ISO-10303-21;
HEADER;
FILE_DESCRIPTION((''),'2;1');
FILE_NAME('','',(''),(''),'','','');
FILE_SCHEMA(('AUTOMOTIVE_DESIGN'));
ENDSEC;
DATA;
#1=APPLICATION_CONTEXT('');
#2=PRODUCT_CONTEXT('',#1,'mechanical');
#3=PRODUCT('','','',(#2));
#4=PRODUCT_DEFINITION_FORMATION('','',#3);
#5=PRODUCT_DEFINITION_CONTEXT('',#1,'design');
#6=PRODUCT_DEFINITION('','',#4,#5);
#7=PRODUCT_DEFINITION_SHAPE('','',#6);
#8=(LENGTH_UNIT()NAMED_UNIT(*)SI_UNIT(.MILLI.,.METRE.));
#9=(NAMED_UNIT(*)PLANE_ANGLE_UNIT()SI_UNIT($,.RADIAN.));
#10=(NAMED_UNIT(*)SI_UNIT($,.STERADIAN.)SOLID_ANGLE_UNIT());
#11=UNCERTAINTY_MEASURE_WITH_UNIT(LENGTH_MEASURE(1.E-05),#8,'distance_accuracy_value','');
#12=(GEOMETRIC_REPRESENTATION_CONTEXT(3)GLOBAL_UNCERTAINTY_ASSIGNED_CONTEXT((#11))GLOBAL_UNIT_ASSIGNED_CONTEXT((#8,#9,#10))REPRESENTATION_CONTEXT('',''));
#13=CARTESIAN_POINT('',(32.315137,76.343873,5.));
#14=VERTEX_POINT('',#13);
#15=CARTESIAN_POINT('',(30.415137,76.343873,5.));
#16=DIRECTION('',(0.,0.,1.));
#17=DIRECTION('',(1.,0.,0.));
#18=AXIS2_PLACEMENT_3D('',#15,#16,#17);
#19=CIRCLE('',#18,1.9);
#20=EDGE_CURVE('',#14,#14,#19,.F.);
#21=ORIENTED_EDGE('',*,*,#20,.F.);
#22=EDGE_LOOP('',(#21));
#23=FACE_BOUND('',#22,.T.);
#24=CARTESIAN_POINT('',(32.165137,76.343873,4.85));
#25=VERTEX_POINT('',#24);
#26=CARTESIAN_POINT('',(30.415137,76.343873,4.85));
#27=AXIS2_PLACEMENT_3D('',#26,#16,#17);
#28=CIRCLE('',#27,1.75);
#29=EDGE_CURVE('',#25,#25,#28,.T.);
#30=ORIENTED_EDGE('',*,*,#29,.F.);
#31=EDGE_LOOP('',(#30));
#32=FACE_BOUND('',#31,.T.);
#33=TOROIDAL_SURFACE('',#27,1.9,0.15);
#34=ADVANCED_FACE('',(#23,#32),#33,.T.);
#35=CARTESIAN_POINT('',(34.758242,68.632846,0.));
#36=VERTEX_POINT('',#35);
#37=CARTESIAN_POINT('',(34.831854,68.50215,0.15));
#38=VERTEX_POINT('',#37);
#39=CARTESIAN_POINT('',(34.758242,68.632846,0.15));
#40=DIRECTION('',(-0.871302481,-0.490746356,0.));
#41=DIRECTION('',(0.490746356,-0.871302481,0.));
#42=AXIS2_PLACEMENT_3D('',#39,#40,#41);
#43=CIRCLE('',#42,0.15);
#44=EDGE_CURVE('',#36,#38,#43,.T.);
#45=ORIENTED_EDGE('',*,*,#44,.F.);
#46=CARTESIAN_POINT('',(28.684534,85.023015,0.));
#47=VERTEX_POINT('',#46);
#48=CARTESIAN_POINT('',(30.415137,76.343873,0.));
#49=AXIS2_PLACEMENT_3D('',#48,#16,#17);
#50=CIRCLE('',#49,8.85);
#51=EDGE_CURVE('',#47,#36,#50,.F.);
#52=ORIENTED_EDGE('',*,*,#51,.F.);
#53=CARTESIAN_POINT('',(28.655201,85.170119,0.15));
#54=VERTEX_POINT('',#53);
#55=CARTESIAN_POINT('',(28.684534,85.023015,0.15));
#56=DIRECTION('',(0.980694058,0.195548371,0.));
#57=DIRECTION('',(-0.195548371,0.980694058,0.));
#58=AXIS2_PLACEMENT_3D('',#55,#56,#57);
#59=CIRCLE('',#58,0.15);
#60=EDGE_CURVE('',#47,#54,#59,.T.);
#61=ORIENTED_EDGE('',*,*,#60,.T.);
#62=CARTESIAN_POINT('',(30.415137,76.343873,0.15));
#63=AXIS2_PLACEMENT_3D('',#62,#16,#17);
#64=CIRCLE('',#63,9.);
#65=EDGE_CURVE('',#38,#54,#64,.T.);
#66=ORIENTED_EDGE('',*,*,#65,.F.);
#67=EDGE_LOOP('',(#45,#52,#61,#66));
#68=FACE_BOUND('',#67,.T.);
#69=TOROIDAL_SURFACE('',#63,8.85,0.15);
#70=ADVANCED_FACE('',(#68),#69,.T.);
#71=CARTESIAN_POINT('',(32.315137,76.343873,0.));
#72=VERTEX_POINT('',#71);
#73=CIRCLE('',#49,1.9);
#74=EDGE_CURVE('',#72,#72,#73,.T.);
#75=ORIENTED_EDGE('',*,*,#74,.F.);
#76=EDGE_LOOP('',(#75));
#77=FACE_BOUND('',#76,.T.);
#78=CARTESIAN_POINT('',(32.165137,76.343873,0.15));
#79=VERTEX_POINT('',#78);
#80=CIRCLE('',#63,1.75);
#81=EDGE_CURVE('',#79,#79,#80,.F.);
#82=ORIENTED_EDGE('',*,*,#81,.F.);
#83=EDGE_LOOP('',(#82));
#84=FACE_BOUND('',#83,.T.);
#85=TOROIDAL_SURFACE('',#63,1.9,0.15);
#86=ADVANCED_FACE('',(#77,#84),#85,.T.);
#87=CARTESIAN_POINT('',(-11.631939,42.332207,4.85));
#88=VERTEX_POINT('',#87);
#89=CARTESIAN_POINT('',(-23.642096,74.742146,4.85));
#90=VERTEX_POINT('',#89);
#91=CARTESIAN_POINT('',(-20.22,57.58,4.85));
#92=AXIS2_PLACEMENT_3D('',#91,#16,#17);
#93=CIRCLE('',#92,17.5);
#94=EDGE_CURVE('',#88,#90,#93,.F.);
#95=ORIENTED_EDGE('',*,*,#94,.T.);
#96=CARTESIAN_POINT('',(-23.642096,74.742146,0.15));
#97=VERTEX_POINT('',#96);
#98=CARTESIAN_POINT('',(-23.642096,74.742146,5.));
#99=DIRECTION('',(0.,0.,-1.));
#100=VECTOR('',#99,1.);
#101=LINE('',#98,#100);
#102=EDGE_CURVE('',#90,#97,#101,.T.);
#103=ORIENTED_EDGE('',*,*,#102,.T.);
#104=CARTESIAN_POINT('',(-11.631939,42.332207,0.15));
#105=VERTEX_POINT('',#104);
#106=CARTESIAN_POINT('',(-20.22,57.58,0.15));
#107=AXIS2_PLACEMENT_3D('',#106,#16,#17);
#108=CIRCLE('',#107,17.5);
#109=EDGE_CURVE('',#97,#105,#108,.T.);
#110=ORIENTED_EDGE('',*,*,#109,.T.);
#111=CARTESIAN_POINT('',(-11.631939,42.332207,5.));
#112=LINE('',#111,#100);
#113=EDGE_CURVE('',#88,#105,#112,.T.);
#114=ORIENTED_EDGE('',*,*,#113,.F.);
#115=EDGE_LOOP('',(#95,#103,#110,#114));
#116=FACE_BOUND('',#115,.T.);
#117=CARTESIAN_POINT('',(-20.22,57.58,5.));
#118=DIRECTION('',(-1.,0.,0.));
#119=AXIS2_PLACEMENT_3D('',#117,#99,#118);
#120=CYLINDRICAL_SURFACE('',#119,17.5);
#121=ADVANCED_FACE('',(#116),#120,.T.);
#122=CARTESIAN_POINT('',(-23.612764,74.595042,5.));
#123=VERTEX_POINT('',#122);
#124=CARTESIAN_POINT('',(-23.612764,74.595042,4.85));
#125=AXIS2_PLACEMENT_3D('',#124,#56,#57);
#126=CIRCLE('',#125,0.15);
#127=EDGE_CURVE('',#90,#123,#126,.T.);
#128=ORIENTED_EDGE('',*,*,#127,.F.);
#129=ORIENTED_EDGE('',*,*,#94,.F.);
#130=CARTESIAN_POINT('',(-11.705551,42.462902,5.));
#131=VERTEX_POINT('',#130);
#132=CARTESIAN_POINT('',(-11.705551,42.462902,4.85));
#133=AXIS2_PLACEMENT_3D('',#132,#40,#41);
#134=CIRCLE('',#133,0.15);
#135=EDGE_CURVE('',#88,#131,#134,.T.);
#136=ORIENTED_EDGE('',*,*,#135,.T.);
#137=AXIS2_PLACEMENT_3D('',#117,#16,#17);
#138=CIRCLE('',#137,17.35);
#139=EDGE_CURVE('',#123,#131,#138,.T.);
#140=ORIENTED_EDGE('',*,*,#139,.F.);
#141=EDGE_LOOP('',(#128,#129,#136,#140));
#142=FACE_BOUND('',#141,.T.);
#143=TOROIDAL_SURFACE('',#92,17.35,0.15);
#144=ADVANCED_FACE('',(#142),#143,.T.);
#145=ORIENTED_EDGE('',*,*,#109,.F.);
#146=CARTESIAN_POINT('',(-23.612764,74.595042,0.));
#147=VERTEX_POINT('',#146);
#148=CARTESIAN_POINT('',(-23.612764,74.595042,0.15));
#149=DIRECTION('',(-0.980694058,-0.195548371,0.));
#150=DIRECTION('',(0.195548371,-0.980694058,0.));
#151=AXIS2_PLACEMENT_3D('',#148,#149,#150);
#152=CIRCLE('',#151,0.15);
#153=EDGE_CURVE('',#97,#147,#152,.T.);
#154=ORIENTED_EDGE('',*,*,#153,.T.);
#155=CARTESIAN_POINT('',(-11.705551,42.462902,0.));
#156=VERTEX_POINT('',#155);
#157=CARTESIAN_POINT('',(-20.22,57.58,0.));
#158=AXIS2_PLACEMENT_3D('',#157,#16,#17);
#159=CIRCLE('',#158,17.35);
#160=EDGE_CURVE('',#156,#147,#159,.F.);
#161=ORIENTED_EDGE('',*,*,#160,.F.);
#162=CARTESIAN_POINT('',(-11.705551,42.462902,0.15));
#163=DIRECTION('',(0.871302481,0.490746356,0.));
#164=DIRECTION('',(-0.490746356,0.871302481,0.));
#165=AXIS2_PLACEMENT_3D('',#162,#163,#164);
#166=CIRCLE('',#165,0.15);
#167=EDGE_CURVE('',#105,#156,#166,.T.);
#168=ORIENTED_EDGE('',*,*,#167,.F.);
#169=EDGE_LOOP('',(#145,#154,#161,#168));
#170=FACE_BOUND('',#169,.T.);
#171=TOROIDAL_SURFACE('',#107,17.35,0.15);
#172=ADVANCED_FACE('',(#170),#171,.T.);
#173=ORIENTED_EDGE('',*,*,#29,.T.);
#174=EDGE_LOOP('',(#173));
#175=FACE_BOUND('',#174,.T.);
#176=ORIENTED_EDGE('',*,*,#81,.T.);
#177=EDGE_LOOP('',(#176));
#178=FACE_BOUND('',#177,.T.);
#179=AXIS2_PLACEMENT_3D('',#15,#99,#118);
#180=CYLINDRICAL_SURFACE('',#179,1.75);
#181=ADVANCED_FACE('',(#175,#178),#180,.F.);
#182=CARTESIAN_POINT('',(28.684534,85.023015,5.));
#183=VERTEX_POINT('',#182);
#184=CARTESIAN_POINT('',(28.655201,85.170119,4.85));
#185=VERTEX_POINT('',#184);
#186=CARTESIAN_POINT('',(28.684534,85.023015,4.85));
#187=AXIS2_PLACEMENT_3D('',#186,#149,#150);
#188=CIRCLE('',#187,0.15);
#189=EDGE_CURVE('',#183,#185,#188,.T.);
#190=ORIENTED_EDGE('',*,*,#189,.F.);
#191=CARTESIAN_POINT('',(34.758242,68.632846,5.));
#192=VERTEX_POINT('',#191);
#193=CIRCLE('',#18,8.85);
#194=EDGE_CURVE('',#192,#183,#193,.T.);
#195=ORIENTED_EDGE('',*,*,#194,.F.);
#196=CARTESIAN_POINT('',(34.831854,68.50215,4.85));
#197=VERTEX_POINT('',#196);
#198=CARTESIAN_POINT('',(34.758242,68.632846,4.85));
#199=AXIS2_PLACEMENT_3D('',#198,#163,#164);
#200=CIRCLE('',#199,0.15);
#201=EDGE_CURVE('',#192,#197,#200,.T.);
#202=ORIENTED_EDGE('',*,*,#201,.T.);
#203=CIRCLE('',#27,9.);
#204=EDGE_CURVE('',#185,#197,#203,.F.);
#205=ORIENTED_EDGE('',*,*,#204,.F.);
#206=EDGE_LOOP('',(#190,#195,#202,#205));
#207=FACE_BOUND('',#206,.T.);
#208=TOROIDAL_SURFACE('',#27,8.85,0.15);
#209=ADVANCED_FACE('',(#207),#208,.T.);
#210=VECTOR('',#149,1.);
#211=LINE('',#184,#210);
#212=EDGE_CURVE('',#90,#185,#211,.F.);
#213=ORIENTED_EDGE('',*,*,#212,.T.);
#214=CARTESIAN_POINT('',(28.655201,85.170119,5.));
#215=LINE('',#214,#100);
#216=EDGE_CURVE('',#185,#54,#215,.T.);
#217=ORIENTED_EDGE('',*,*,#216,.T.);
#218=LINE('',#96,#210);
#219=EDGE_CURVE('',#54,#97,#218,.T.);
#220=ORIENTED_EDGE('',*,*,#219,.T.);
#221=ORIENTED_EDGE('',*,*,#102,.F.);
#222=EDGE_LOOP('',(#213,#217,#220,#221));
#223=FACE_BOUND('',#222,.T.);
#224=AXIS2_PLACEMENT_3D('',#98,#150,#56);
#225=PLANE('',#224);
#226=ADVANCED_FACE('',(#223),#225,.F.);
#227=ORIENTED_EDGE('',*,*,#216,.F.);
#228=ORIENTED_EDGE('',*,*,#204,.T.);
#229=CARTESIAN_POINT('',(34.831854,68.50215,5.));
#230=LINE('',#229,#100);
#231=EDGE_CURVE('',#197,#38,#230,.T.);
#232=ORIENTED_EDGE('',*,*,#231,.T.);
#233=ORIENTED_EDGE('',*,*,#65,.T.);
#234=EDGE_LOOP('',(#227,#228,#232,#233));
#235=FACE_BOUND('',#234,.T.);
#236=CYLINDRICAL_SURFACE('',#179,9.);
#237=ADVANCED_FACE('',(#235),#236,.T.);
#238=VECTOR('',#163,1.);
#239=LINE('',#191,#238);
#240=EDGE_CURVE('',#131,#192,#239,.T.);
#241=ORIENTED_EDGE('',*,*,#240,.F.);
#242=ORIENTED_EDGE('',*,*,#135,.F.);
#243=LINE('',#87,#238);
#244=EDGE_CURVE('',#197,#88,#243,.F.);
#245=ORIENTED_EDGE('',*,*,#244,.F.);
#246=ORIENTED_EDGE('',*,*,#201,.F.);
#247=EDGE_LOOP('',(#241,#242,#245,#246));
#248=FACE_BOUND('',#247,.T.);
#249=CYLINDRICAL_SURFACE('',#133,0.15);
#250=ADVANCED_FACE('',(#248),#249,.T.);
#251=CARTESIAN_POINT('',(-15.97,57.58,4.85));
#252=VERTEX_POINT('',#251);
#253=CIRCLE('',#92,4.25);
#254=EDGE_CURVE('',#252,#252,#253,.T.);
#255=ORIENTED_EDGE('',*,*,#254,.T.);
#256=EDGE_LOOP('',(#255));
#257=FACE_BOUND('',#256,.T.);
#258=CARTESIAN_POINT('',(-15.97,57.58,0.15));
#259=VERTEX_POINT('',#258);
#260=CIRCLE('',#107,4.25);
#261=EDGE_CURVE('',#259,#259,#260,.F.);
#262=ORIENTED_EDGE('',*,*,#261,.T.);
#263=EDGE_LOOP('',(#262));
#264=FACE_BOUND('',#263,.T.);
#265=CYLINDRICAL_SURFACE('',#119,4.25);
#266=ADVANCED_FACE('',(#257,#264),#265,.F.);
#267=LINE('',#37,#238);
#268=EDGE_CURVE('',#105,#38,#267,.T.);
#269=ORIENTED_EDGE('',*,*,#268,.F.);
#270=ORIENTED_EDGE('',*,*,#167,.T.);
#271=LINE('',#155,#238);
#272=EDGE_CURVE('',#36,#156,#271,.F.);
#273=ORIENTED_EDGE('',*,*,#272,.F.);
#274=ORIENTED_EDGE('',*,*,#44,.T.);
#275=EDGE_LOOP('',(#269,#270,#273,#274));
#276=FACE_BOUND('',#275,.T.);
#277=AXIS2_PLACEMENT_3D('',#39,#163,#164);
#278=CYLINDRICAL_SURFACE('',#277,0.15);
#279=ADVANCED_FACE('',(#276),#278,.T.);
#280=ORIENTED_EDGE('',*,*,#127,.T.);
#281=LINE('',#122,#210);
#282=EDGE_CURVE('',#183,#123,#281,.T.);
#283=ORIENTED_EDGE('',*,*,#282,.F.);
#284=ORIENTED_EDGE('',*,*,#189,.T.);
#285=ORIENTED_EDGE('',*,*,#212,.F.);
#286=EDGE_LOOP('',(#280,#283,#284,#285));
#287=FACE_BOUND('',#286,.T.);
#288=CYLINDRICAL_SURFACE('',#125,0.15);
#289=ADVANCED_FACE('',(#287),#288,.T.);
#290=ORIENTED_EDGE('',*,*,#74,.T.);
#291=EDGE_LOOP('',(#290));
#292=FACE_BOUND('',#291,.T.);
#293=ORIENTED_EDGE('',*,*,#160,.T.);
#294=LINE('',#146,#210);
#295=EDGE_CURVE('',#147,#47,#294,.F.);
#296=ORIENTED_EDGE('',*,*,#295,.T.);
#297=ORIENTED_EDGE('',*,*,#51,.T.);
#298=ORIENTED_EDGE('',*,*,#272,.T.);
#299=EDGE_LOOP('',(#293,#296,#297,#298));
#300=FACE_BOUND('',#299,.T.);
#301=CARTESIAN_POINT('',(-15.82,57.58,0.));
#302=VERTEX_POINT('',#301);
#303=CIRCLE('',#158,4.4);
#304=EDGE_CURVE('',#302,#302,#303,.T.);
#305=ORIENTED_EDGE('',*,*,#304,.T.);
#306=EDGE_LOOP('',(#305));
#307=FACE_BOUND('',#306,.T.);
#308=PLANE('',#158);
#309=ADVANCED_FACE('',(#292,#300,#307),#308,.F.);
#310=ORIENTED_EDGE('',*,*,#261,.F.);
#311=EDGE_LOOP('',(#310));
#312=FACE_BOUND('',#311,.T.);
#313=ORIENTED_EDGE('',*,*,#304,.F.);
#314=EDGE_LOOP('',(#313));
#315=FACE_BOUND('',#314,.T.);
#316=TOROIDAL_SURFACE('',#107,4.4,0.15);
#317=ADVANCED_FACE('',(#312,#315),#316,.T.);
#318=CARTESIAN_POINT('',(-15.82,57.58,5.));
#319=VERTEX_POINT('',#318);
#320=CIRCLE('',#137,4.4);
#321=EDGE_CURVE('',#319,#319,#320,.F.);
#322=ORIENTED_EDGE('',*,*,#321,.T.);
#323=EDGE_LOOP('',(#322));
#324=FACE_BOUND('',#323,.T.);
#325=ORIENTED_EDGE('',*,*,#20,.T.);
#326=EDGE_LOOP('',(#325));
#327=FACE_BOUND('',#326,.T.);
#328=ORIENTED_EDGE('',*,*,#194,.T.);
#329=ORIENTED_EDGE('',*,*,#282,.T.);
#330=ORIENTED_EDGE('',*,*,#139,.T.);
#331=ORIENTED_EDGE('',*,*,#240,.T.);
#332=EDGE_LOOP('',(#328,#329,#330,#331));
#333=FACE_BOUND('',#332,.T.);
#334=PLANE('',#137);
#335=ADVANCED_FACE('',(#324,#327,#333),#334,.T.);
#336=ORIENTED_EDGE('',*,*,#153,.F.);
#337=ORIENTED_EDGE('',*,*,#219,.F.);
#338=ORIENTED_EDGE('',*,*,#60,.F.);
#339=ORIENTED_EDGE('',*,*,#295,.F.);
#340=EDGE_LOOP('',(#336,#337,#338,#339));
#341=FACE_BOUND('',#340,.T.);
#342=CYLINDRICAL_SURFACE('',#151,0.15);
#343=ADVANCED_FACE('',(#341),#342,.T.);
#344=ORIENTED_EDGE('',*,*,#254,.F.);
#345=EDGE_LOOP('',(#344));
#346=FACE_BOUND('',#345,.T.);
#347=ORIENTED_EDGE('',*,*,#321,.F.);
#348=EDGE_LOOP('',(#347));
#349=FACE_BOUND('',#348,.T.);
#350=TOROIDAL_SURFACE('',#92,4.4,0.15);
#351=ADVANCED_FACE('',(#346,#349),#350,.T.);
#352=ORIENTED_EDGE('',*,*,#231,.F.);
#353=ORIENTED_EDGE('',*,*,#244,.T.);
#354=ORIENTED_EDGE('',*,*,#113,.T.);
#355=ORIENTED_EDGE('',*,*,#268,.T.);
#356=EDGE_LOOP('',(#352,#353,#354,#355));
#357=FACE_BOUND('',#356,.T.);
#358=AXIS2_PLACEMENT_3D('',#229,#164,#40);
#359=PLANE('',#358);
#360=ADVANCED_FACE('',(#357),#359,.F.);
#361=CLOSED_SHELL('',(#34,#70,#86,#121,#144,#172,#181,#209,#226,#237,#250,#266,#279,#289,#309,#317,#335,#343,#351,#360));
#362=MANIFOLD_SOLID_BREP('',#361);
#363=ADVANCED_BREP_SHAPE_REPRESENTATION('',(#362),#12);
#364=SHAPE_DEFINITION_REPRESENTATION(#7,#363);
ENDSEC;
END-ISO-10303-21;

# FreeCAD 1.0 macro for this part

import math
import FreeCAD as App
import Part
import Sketcher

V = App.Vector


def edges_at(feature, points):
    """Names of the edges that pass closest to the given points."""
    edges = feature.Shape.Edges
    near = lambda p: min(range(len(edges)), key=lambda i: edges[i].distToShape(Part.Vertex(*p))[0])
    return sorted({f"Edge{near(p) + 1}" for p in points})

doc = App.newDocument("Part")
body = doc.addObject("PartDesign::Body", "Body")

# Sketch on XY plane
sketch1 = body.newObject("Sketcher::SketchObject", "Sketch")
sketch1.AttachmentSupport = (doc.getObject("XY_Plane"), [""])
sketch1.MapMode = "FlatFace"
sketch1.addGeometry([
    Part.LineSegment(V(28.655201, 85.170119, 0), V(-23.642096, 74.742146, 0)),  # 0
    Part.ArcOfCircle(Part.Circle(V(-20.22, 57.58, 0), V(0, 0, 1), 17.5), math.radians(101.27676), math.radians(299.389649)),  # 1
    Part.LineSegment(V(-11.631939, 42.332207, 0), V(34.831854, 68.50215, 0)),  # 2
    Part.ArcOfCircle(Part.Circle(V(30.415137, 76.343873, 0), V(0, 0, 1), 9), math.radians(-60.610351), math.radians(101.27676)),  # 3
    Part.Circle(V(-20.22, 57.58, 0), V(0, 0, 1), 4.25),  # 4
    Part.Circle(V(30.415137, 76.343873, 0), V(0, 0, 1), 1.75),  # 5
], False)
sketch1.addConstraint([
    Sketcher.Constraint("Tangent", 0, 2, 1, 1),
    Sketcher.Constraint("Tangent", 1, 2, 2, 1),
    Sketcher.Constraint("Tangent", 2, 2, 3, 1),
    Sketcher.Constraint("Tangent", 3, 2, 0, 1),
    Sketcher.Constraint("Coincident", 4, 3, 1, 3),
    Sketcher.Constraint("Coincident", 5, 3, 3, 3),
    Sketcher.Constraint("Radius", 3, 9.0),
    Sketcher.Constraint("Diameter", 4, 8.5),
    Sketcher.Constraint("Diameter", 5, 3.5),
    Sketcher.Constraint("Radius", 1, 17.5),
    Sketcher.Constraint("DistanceX", 1, 3, -1, 1, 20.22),
    Sketcher.Constraint("DistanceY", -1, 1, 1, 3, 57.58),
    Sketcher.Constraint("DistanceX", -1, 1, 3, 2, 28.655201),
    Sketcher.Constraint("DistanceX", 1, 2, -1, 1, 11.631939),
])
pad1 = body.newObject("PartDesign::Pad", "Pad")
pad1.Profile = sketch1
pad1.Length = 5
doc.recompute()

fillet = body.newObject("PartDesign::Fillet", "Fillet")
fillet.Base = (pad1, edges_at(pad1, [
    (28.665, 76.344, 0),
    (28.665, 76.344, 5),
    (38.854, 79.471, 5),
    (-24.47, 57.58, 0),
    (-24.47, 57.58, 5),
    (2.507, 79.956, 5),
    (-36.63, 51.499, 5),
    (2.507, 79.956, 0),
    (38.854, 79.471, 0),
    (11.6, 55.417, 0),
    (-36.63, 51.499, 0),
    (11.6, 55.417, 5),
]))
fillet.Radius = 0.15

doc.recompute()
